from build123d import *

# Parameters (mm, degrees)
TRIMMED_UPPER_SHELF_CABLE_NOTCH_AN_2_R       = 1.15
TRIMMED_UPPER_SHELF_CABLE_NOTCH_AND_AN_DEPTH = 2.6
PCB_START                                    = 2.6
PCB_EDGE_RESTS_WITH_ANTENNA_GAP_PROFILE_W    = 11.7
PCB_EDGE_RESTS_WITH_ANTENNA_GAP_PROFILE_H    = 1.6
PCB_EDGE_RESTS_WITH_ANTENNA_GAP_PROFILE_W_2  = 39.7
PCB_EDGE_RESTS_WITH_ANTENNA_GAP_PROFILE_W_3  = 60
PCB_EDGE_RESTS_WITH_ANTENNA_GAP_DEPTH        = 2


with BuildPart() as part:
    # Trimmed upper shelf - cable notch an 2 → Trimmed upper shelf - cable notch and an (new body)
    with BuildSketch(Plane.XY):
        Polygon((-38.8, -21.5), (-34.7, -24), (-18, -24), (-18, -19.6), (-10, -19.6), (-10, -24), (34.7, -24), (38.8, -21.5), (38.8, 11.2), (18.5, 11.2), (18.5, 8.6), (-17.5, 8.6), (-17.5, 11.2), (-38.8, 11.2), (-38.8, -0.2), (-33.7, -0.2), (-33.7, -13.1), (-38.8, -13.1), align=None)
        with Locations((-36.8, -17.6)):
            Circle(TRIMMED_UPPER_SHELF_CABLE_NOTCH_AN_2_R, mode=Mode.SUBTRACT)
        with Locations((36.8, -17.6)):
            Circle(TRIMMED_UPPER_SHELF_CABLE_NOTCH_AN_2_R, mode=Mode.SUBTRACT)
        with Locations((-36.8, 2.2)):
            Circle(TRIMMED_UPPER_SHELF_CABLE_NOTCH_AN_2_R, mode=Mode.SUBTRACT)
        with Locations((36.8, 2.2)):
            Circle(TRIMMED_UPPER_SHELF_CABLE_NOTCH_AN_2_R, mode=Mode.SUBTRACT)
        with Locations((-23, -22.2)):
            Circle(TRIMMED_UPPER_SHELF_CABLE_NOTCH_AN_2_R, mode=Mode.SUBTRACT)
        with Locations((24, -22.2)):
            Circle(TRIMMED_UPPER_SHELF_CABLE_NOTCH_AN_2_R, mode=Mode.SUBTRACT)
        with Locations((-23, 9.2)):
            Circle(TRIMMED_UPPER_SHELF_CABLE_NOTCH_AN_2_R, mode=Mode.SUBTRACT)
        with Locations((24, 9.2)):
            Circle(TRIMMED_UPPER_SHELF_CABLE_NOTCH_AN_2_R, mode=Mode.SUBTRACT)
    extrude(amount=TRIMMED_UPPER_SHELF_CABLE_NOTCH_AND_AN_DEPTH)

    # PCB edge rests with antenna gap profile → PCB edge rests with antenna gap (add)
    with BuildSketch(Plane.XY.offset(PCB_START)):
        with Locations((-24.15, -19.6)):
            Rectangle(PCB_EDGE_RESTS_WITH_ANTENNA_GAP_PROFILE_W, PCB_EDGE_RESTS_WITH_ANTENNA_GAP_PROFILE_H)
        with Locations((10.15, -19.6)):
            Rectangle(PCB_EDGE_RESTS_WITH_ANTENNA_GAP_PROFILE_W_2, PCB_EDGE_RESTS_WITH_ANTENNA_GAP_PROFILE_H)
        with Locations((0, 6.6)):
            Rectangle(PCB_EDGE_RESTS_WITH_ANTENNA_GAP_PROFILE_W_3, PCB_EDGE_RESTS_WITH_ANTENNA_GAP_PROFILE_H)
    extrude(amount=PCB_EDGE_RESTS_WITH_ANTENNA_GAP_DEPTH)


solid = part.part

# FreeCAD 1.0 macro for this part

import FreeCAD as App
import Part
import Sketcher
from FreeCAD import Vector
Q = App.Units.Quantity

doc = App.newDocument("Part")
body = doc.addObject("PartDesign::Body", "Body")

# Sketch on XY plane
sketch1 = body.newObject("Sketcher::SketchObject", "Sketch")
sketch1.AttachmentSupport = (doc.getObject("XY_Plane"), [""])
sketch1.MapMode = "FlatFace"
sketch1.addGeometry(Part.LineSegment(Vector(-38.8, -21.5, 0), Vector(-34.7, -24, 0)), False)
sketch1.addGeometry(Part.LineSegment(Vector(-34.7, -24, 0), Vector(-18, -24, 0)), False)
sketch1.addGeometry(Part.LineSegment(Vector(-18, -24, 0), Vector(-18, -19.6, 0)), False)
sketch1.addGeometry(Part.LineSegment(Vector(-18, -19.6, 0), Vector(-10, -19.6, 0)), False)
sketch1.addGeometry(Part.LineSegment(Vector(-10, -19.6, 0), Vector(-10, -24, 0)), False)
sketch1.addGeometry(Part.LineSegment(Vector(-10, -24, 0), Vector(34.7, -24, 0)), False)
sketch1.addGeometry(Part.LineSegment(Vector(34.7, -24, 0), Vector(38.8, -21.5, 0)), False)
sketch1.addGeometry(Part.LineSegment(Vector(38.8, -21.5, 0), Vector(38.8, 11.2, 0)), False)
sketch1.addGeometry(Part.LineSegment(Vector(38.8, 11.2, 0), Vector(18.5, 11.2, 0)), False)
sketch1.addGeometry(Part.LineSegment(Vector(18.5, 11.2, 0), Vector(18.5, 8.6, 0)), False)
sketch1.addGeometry(Part.LineSegment(Vector(18.5, 8.6, 0), Vector(-17.5, 8.6, 0)), False)
sketch1.addGeometry(Part.LineSegment(Vector(-17.5, 8.6, 0), Vector(-17.5, 11.2, 0)), False)
sketch1.addGeometry(Part.LineSegment(Vector(-17.5, 11.2, 0), Vector(-38.8, 11.2, 0)), False)
sketch1.addGeometry(Part.LineSegment(Vector(-38.8, 11.2, 0), Vector(-38.8, -0.2, 0)), False)
sketch1.addGeometry(Part.LineSegment(Vector(-38.8, -0.2, 0), Vector(-33.7, -0.2, 0)), False)
sketch1.addGeometry(Part.LineSegment(Vector(-33.7, -0.2, 0), Vector(-33.7, -13.1, 0)), False)
sketch1.addGeometry(Part.LineSegment(Vector(-33.7, -13.1, 0), Vector(-38.8, -13.1, 0)), False)
sketch1.addGeometry(Part.LineSegment(Vector(-38.8, -13.1, 0), Vector(-38.8, -21.5, 0)), False)
sketch1.addGeometry(Part.Circle(Vector(-23, -22.2, 0), Vector(0, 0, 1), 1.1), False)
sketch1.addGeometry(Part.Circle(Vector(-36.8, -17.6, 0), Vector(0, 0, 1), 1.1), False)
sketch1.addGeometry(Part.Circle(Vector(24, -22.2, 0), Vector(0, 0, 1), 1.1), False)
sketch1.addGeometry(Part.Circle(Vector(36.8, -17.6, 0), Vector(0, 0, 1), 1.1), False)
sketch1.addGeometry(Part.Circle(Vector(-36.8, 2.2, 0), Vector(0, 0, 1), 1.1), False)
sketch1.addGeometry(Part.Circle(Vector(-23, 9.2, 0), Vector(0, 0, 1), 1.1), False)
sketch1.addGeometry(Part.Circle(Vector(36.8, 2.2, 0), Vector(0, 0, 1), 1.1), False)
sketch1.addGeometry(Part.Circle(Vector(24, 9.2, 0), Vector(0, 0, 1), 1.1), False)
sketch1.addConstraint(Sketcher.Constraint("Coincident", 0, 2, 1, 1))
sketch1.addConstraint(Sketcher.Constraint("Coincident", 1, 2, 2, 1))
sketch1.addConstraint(Sketcher.Constraint("Coincident", 2, 2, 3, 1))
sketch1.addConstraint(Sketcher.Constraint("Coincident", 3, 2, 4, 1))
sketch1.addConstraint(Sketcher.Constraint("Coincident", 4, 2, 5, 1))
sketch1.addConstraint(Sketcher.Constraint("Coincident", 5, 2, 6, 1))
sketch1.addConstraint(Sketcher.Constraint("Coincident", 6, 2, 7, 1))
sketch1.addConstraint(Sketcher.Constraint("Coincident", 7, 2, 8, 1))
sketch1.addConstraint(Sketcher.Constraint("Coincident", 8, 2, 9, 1))
sketch1.addConstraint(Sketcher.Constraint("Coincident", 9, 2, 10, 1))
sketch1.addConstraint(Sketcher.Constraint("Coincident", 10, 2, 11, 1))
sketch1.addConstraint(Sketcher.Constraint("Coincident", 11, 2, 12, 1))
sketch1.addConstraint(Sketcher.Constraint("Coincident", 12, 2, 13, 1))
sketch1.addConstraint(Sketcher.Constraint("Coincident", 13, 2, 14, 1))
sketch1.addConstraint(Sketcher.Constraint("Coincident", 14, 2, 15, 1))
sketch1.addConstraint(Sketcher.Constraint("Coincident", 15, 2, 16, 1))
sketch1.addConstraint(Sketcher.Constraint("Coincident", 16, 2, 17, 1))
sketch1.addConstraint(Sketcher.Constraint("Coincident", 17, 2, 0, 1))
sketch1.addConstraint(Sketcher.Constraint("Horizontal", 1))
sketch1.addConstraint(Sketcher.Constraint("Vertical", 2))
sketch1.addConstraint(Sketcher.Constraint("Horizontal", 3))
sketch1.addConstraint(Sketcher.Constraint("Vertical", 4))
sketch1.addConstraint(Sketcher.Constraint("Horizontal", 5))
sketch1.addConstraint(Sketcher.Constraint("Vertical", 7))
sketch1.addConstraint(Sketcher.Constraint("Horizontal", 8))
sketch1.addConstraint(Sketcher.Constraint("Vertical", 9))
sketch1.addConstraint(Sketcher.Constraint("Horizontal", 10))
sketch1.addConstraint(Sketcher.Constraint("Vertical", 11))
sketch1.addConstraint(Sketcher.Constraint("Horizontal", 12))
sketch1.addConstraint(Sketcher.Constraint("Vertical", 13))
sketch1.addConstraint(Sketcher.Constraint("Horizontal", 14))
sketch1.addConstraint(Sketcher.Constraint("Vertical", 15))
sketch1.addConstraint(Sketcher.Constraint("Horizontal", 16))
sketch1.addConstraint(Sketcher.Constraint("Vertical", 17))
sketch1.addConstraint(Sketcher.Constraint("Equal", 18, 19))
sketch1.addConstraint(Sketcher.Constraint("Equal", 19, 20))
sketch1.addConstraint(Sketcher.Constraint("Equal", 20, 21))
sketch1.addConstraint(Sketcher.Constraint("Equal", 21, 22))
sketch1.addConstraint(Sketcher.Constraint("Equal", 22, 23))
sketch1.addConstraint(Sketcher.Constraint("Equal", 23, 24))
sketch1.addConstraint(Sketcher.Constraint("Equal", 24, 25))
sketch1.addConstraint(Sketcher.Constraint("Symmetric", 19, 3, 21, 3, -2))
sketch1.addConstraint(Sketcher.Constraint("Symmetric", 22, 3, 24, 3, -2))
sketch1.addConstraint(Sketcher.Constraint("Symmetric", 0, 2, 5, 2, -2))
sketch1.addConstraint(Sketcher.Constraint("Symmetric", 7, 2, 12, 2, -2))
sketch1.addConstraint(Sketcher.Constraint("Symmetric", 6, 2, 17, 2, -2))
sketch1.addConstraint(Sketcher.Constraint("Horizontal", 18, 3, 20, 3))
sketch1.addConstraint(Sketcher.Constraint("Horizontal", 23, 3, 25, 3))
sketch1.addConstraint(Sketcher.Constraint("Vertical", 19, 3, 22, 3))
sketch1.addConstraint(Sketcher.Constraint("Vertical", 18, 3, 23, 3))
sketch1.addConstraint(Sketcher.Constraint("Vertical", 20, 3, 25, 3))
sketch1.addConstraint(Sketcher.Constraint("Diameter", 18, Q("2.3 mm")))
sketch1.addConstraint(Sketcher.Constraint("DistanceX", 3, 1, 3, 2, Q("8 mm")))
sketch1.addConstraint(Sketcher.Constraint("DistanceX", 10, 2, 10, 1, Q("36 mm")))
sketch1.addConstraint(Sketcher.Constraint("DistanceX", 1, 1, 1, 2, Q("16.7 mm")))
sketch1.addConstraint(Sketcher.Constraint("DistanceX", 5, 1, 5, 2, Q("44.7 mm")))
sketch1.addConstraint(Sketcher.Constraint("DistanceX", 8, 2, 8, 1, Q("20.3 mm")))
sketch1.addConstraint(Sketcher.Constraint("DistanceX", 12, 2, 12, 1, Q("21.3 mm")))
sketch1.addConstraint(Sketcher.Constraint("DistanceX", 14, 1, 14, 2, Q("5.1 mm")))
sketch1.addConstraint(Sketcher.Constraint("DistanceY", 2, 1, 2, 2, Q("4.4 mm")))
sketch1.addConstraint(Sketcher.Constraint("DistanceY", 7, 1, 7, 2, Q("32.7 mm")))
sketch1.addConstraint(Sketcher.Constraint("DistanceY", 9, 2, 9, 1, Q("2.6 mm")))
sketch1.addConstraint(Sketcher.Constraint("DistanceY", 13, 2, 13, 1, Q("11.4 mm")))
sketch1.addConstraint(Sketcher.Constraint("DistanceY", 15, 2, 15, 1, Q("12.9 mm")))
sketch1.addConstraint(Sketcher.Constraint("DistanceX", 18, 3, -1, 1, Q("23 mm")))
sketch1.addConstraint(Sketcher.Constraint("DistanceX", -1, 1, 20, 3, Q("24 mm")))
sketch1.addConstraint(Sketcher.Constraint("DistanceY", 0, 2, -1, 1, Q("24 mm")))
sketch1.addConstraint(Sketcher.Constraint("DistanceY", 22, 3, 23, 3, Q("7 mm")))
sketch1.addConstraint(Sketcher.Constraint("DistanceY", 2, 2, 19, 3, Q("2 mm")))
sketch1.addConstraint(Sketcher.Constraint("DistanceX", 21, 3, 6, 2, Q("2 mm")))
sketch1.addConstraint(Sketcher.Constraint("DistanceY", 24, 3, 7, 2, Q("9 mm")))
sketch1.addConstraint(Sketcher.Constraint("DistanceY", 18, 3, -1, 1, Q("22.2 mm")))
sketch1.addConstraint(Sketcher.Constraint("DistanceY", -1, 1, 22, 3, Q("2.2 mm")))
pad1 = body.newObject("PartDesign::Pad", "Pad")
pad1.Profile = sketch1
pad1.Length = 2.6

# Sketch on XY plane
sketch2 = body.newObject("Sketcher::SketchObject", "Sketch001")
sketch2.AttachmentSupport = (doc.getObject("XY_Plane"), [""])
sketch2.MapMode = "FlatFace"
sketch2.AttachmentOffset = App.Placement(Vector(0, 0, 2.6), App.Rotation())
sketch2.addGeometry(Part.LineSegment(Vector(-30, -18.8, 0), Vector(-30, -20.4, 0)), False)
sketch2.addGeometry(Part.LineSegment(Vector(-30, -20.4, 0), Vector(-18.3, -20.4, 0)), False)
sketch2.addGeometry(Part.LineSegment(Vector(-18.3, -20.4, 0), Vector(-18.3, -18.8, 0)), False)
sketch2.addGeometry(Part.LineSegment(Vector(-18.3, -18.8, 0), Vector(-30, -18.8, 0)), False)
sketch2.addGeometry(Part.LineSegment(Vector(-9.7, -18.8, 0), Vector(-9.7, -20.4, 0)), False)
sketch2.addGeometry(Part.LineSegment(Vector(-9.7, -20.4, 0), Vector(30, -20.4, 0)), False)
sketch2.addGeometry(Part.LineSegment(Vector(30, -20.4, 0), Vector(30, -18.8, 0)), False)
sketch2.addGeometry(Part.LineSegment(Vector(30, -18.8, 0), Vector(-9.7, -18.8, 0)), False)
sketch2.addGeometry(Part.LineSegment(Vector(-30, 7.4, 0), Vector(-30, 5.8, 0)), False)
sketch2.addGeometry(Part.LineSegment(Vector(-30, 5.8, 0), Vector(30, 5.8, 0)), False)
sketch2.addGeometry(Part.LineSegment(Vector(30, 5.8, 0), Vector(30, 7.4, 0)), False)
sketch2.addGeometry(Part.LineSegment(Vector(30, 7.4, 0), Vector(-30, 7.4, 0)), False)
sketch2.addConstraint(Sketcher.Constraint("Coincident", 0, 2, 1, 1))
sketch2.addConstraint(Sketcher.Constraint("Coincident", 1, 2, 2, 1))
sketch2.addConstraint(Sketcher.Constraint("Coincident", 2, 2, 3, 1))
sketch2.addConstraint(Sketcher.Constraint("Coincident", 3, 2, 0, 1))
sketch2.addConstraint(Sketcher.Constraint("Coincident", 4, 2, 5, 1))
sketch2.addConstraint(Sketcher.Constraint("Coincident", 5, 2, 6, 1))
sketch2.addConstraint(Sketcher.Constraint("Coincident", 6, 2, 7, 1))
sketch2.addConstraint(Sketcher.Constraint("Coincident", 7, 2, 4, 1))
sketch2.addConstraint(Sketcher.Constraint("Coincident", 8, 2, 9, 1))
sketch2.addConstraint(Sketcher.Constraint("Coincident", 9, 2, 10, 1))
sketch2.addConstraint(Sketcher.Constraint("Coincident", 10, 2, 11, 1))
sketch2.addConstraint(Sketcher.Constraint("Coincident", 11, 2, 8, 1))
sketch2.addConstraint(Sketcher.Constraint("Vertical", 0))
sketch2.addConstraint(Sketcher.Constraint("Horizontal", 1))
sketch2.addConstraint(Sketcher.Constraint("Vertical", 2))
sketch2.addConstraint(Sketcher.Constraint("Horizontal", 3))
sketch2.addConstraint(Sketcher.Constraint("Vertical", 4))
sketch2.addConstraint(Sketcher.Constraint("Horizontal", 5))
sketch2.addConstraint(Sketcher.Constraint("Vertical", 6))
sketch2.addConstraint(Sketcher.Constraint("Horizontal", 7))
sketch2.addConstraint(Sketcher.Constraint("Vertical", 8))
sketch2.addConstraint(Sketcher.Constraint("Horizontal", 9))
sketch2.addConstraint(Sketcher.Constraint("Vertical", 10))
sketch2.addConstraint(Sketcher.Constraint("Horizontal", 11))
sketch2.addConstraint(Sketcher.Constraint("Symmetric", 0, 2, 5, 2, -2))
sketch2.addConstraint(Sketcher.Constraint("Horizontal", 3, 2, 6, 2))
sketch2.addConstraint(Sketcher.Constraint("Vertical", 3, 2, 8, 2))
sketch2.addConstraint(Sketcher.Constraint("Vertical", 6, 2, 9, 2))
sketch2.addConstraint(Sketcher.Constraint("Equal", 6, 8))
sketch2.addConstraint(Sketcher.Constraint("DistanceX", 9, 1, 9, 2, Q("60 mm")))
sketch2.addConstraint(Sketcher.Constraint("DistanceX", 1, 1, 1, 2, Q("11.7 mm")))
sketch2.addConstraint(Sketcher.Constraint("DistanceX", 5, 1, 5, 2, Q("39.7 mm")))
sketch2.addConstraint(Sketcher.Constraint("DistanceY", 0, 2, 0, 1, Q("1.6 mm")))
sketch2.addConstraint(Sketcher.Constraint("DistanceY", 0, 2, -1, 1, Q("20.4 mm")))
sketch2.addConstraint(Sketcher.Constraint("DistanceY", -1, 1, 8, 2, Q("5.8 mm")))
pad2 = body.newObject("PartDesign::Pad", "Pad001")
pad2.Profile = sketch2
pad2.Length = 2

doc.recompute()
